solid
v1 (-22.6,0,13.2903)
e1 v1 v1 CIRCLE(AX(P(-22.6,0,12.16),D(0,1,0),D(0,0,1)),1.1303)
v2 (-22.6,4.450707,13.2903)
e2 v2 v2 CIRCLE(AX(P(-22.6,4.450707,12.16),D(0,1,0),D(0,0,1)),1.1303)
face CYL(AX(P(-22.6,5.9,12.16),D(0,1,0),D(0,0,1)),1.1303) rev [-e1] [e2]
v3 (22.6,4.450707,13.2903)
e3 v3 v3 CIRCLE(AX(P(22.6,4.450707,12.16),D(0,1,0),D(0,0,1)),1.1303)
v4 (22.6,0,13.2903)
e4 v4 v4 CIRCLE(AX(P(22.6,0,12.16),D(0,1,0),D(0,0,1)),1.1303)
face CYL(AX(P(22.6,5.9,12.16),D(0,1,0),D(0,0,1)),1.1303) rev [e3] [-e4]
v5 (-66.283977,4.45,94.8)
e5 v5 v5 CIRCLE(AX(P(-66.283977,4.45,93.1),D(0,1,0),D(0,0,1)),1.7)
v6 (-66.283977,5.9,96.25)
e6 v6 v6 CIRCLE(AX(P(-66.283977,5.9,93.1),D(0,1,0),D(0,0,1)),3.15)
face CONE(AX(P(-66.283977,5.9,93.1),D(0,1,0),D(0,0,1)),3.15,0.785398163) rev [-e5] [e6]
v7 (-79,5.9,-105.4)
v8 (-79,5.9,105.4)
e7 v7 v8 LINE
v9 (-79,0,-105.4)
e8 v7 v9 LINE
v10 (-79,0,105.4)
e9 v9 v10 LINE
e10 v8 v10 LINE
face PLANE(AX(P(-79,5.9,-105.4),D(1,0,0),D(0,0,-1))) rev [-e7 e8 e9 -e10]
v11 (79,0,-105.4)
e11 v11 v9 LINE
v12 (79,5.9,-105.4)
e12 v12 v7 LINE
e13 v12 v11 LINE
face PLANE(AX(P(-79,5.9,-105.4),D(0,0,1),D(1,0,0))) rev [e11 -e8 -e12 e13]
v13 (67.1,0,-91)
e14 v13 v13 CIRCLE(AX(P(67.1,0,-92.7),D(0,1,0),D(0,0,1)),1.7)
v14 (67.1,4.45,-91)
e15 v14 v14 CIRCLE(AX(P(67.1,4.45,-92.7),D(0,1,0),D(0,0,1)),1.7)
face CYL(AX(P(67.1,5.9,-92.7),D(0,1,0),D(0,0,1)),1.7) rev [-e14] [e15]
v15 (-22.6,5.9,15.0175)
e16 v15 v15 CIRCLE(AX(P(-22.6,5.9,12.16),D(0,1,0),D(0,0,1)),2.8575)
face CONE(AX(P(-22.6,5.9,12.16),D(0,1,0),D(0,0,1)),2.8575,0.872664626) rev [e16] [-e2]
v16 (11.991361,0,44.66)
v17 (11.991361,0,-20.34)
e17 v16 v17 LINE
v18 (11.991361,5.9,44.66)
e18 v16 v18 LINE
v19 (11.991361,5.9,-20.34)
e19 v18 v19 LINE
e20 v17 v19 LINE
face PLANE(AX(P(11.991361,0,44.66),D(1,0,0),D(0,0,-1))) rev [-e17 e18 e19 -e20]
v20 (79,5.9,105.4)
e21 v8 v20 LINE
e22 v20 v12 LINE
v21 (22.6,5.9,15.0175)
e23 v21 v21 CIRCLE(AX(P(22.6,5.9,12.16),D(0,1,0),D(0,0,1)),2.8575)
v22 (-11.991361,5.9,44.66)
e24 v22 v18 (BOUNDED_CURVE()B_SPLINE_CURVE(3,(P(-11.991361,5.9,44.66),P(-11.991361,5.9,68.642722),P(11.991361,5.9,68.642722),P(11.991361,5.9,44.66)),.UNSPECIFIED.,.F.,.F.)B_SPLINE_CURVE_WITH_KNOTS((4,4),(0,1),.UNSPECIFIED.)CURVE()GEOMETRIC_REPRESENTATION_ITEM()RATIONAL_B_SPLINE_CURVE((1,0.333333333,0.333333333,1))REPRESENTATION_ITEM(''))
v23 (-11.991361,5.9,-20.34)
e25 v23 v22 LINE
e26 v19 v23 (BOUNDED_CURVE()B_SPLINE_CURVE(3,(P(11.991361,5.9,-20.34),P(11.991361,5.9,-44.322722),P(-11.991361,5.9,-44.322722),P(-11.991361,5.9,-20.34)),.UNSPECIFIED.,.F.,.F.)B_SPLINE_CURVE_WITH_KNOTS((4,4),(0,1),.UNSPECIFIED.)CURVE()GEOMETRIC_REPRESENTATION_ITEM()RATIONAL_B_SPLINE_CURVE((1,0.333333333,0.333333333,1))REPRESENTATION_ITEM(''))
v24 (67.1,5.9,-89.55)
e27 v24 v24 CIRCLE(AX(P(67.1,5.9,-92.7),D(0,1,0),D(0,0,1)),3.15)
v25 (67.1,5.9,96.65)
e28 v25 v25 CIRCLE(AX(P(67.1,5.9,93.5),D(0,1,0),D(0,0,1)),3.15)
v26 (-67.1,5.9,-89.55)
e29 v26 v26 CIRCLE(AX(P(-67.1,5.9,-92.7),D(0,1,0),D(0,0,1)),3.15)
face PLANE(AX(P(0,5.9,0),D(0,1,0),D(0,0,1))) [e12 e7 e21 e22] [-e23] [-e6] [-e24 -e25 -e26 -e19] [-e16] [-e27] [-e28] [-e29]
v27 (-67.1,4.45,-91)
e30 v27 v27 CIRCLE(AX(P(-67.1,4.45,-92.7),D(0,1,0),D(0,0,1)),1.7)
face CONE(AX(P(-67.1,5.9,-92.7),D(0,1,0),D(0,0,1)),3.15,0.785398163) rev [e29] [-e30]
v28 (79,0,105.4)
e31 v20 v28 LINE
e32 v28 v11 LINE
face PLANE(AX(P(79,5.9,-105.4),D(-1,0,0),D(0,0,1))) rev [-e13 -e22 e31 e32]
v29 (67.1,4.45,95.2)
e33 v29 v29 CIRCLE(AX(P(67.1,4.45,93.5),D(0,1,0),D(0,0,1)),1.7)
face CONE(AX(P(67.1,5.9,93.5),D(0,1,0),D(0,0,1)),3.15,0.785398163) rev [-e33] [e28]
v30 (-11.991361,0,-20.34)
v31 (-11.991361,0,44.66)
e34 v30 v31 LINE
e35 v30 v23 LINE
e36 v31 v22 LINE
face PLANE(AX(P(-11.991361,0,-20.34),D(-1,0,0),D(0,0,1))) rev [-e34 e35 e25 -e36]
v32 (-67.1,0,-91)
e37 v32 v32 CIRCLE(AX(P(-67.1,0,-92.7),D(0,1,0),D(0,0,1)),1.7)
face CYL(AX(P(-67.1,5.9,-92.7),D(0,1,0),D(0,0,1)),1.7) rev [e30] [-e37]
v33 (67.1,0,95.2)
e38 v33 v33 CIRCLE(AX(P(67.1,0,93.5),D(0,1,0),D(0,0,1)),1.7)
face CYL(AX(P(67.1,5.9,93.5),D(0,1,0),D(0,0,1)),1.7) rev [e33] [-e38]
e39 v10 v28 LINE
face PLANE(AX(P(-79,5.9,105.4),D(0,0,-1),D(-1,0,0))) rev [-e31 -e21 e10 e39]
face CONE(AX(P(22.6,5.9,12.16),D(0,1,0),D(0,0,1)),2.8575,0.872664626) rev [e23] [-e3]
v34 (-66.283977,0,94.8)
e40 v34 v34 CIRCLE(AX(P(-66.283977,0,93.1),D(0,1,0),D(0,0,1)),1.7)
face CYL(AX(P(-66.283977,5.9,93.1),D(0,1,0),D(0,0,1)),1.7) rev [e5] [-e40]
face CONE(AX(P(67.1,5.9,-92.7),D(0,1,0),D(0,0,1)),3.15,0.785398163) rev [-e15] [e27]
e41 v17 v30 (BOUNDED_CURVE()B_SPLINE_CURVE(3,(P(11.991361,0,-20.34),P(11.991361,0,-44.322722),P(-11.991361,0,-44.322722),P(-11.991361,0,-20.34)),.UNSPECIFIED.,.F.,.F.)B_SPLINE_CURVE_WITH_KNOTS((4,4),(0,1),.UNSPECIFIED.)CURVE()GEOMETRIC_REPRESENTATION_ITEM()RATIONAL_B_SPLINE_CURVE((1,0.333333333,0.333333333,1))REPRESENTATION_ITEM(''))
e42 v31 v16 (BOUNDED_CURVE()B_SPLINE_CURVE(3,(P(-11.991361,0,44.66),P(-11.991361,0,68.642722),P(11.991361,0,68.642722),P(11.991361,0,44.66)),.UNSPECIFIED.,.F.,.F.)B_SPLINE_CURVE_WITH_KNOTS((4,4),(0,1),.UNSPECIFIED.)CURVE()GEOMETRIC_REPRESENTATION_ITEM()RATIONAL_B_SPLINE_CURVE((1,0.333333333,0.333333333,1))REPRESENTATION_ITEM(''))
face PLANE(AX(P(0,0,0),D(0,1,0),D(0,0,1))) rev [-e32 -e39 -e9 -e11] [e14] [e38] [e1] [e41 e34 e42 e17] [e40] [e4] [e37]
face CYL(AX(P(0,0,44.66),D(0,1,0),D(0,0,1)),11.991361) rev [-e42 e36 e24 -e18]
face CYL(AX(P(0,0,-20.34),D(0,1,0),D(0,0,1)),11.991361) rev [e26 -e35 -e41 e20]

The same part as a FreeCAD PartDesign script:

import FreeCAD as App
import Part
import Sketcher

doc = App.newDocument("Part")
params = doc.addObject("Spreadsheet::Sheet", "Params")
for row, (alias, value) in enumerate([
    ("sketch1_width", "158 mm"),
    ("sketch1_height", "210.8 mm"),
    ("pad1_length", "5.9 mm"),
    ("sketch2_diameter", "3.4 mm"),
    ("hole_diameter", "3.4 mm"),
    ("hole_depth", "10 mm"),
    ("hole_csink_diameter", "6.3 mm"),
    ("hole2_diameter", "2.2606 mm"),
    ("hole2_depth", "10 mm"),
    ("hole2_csink_diameter", "5.715 mm"),
], start=1):
    params.set(f"A{row}", alias)
    params.set(f"B{row}", "=" + value)
    params.setAlias(f"B{row}", alias)

body = doc.addObject("PartDesign::Body", "Body")

sketch1 = doc.addObject("Sketcher::SketchObject", "Sketch")
body.addObject(sketch1)
sketch1.AttachmentSupport = (doc.XZ_Plane, [""])
sketch1.MapMode = "FlatFace"
sketch1.addGeometry(Part.LineSegment(App.Vector(-79, -105.4, 0), App.Vector(-79, 105.4, 0)), False)
sketch1.addGeometry(Part.LineSegment(App.Vector(-79, 105.4, 0), App.Vector(79, 105.4, 0)), False)
sketch1.addGeometry(Part.LineSegment(App.Vector(79, 105.4, 0), App.Vector(79, -105.4, 0)), False)
sketch1.addGeometry(Part.LineSegment(App.Vector(79, -105.4, 0), App.Vector(-79, -105.4, 0)), False)
sketch1.addConstraint(Sketcher.Constraint("Coincident", 0, 2, 1, 1))
sketch1.addConstraint(Sketcher.Constraint("Coincident", 1, 2, 2, 1))
sketch1.addConstraint(Sketcher.Constraint("Coincident", 2, 2, 3, 1))
sketch1.addConstraint(Sketcher.Constraint("Coincident", 3, 2, 0, 1))
sketch1.addConstraint(Sketcher.Constraint("Vertical", 0))
sketch1.addConstraint(Sketcher.Constraint("Horizontal", 1))
sketch1.addConstraint(Sketcher.Constraint("Vertical", 2))
sketch1.addConstraint(Sketcher.Constraint("Horizontal", 3))
sketch1.addConstraint(Sketcher.Constraint("Symmetric", 0, 2, 2, 2, -1, 1))
sketch1.addConstraint(Sketcher.Constraint("DistanceX", 1, 1, 1, 2, 158.0))
sketch1.addConstraint(Sketcher.Constraint("DistanceY", 0, 1, 0, 2, 210.8))
sketch1.setExpression("Constraints[9]", "Params.sketch1_width")
sketch1.setExpression("Constraints[10]", "Params.sketch1_height")
pad1 = doc.addObject("PartDesign::Pad", "Pad")
body.addObject(pad1)
pad1.Profile = sketch1
pad1.setExpression("Length", "Params.pad1_length")
pad1.Reversed = True

sketch2 = doc.addObject("Sketcher::SketchObject", "Sketch001")
body.addObject(sketch2)
sketch2.AttachmentSupport = (doc.XZ_Plane, [""])
sketch2.MapMode = "FlatFace"
sketch2.AttachmentOffset = App.Placement(App.Vector(0, 0, -5.9), App.Rotation())
sketch2.addGeometry(Part.Circle(App.Vector(67.1, -92.7, 0), App.Vector(0, 0, 1), 1.7), False)
sketch2.addGeometry(Part.Circle(App.Vector(67.1, 93.5, 0), App.Vector(0, 0, 1), 1.7), False)
sketch2.addGeometry(Part.Circle(App.Vector(-66.283977, 93.1, 0), App.Vector(0, 0, 1), 1.7), False)
sketch2.addGeometry(Part.Circle(App.Vector(-67.1, -92.7, 0), App.Vector(0, 0, 1), 1.7), False)
sketch2.addConstraint(Sketcher.Constraint("Equal", 0, 1))
sketch2.addConstraint(Sketcher.Constraint("Equal", 1, 2))
sketch2.addConstraint(Sketcher.Constraint("Equal", 2, 3))
sketch2.addConstraint(Sketcher.Constraint("Symmetric", 0, 3, 3, 3, -2))
sketch2.addConstraint(Sketcher.Constraint("Vertical", 0, 3, 1, 3))
sketch2.addConstraint(Sketcher.Constraint("Diameter", 0, 3.4))
sketch2.addConstraint(Sketcher.Constraint("DistanceX", -1, 1, 0, 3, 67.1))
sketch2.addConstraint(Sketcher.Constraint("DistanceY", 0, 3, -1, 1, 92.7))
sketch2.addConstraint(Sketcher.Constraint("DistanceY", -1, 1, 1, 3, 93.5))
sketch2.addConstraint(Sketcher.Constraint("DistanceY", -1, 1, 2, 3, 93.1))
sketch2.addConstraint(Sketcher.Constraint("DistanceX", 2, 3, -1, 1, 66.283977))
sketch2.setExpression("Constraints[5]", "Params.sketch2_diameter")
doc.recompute()
hole = doc.addObject("PartDesign::Hole", "Hole")
body.addObject(hole)
hole.Profile = sketch2
hole.ThreadType = "None"
hole.setExpression("Diameter", "Params.hole_diameter")
hole.DepthType = "Dimension"
hole.setExpression("Depth", "Params.hole_depth")
hole.DrillPoint = "Angled"
hole.DrillPointAngle = 118
hole.HoleCutType = "Countersink"
hole.setExpression("HoleCutDiameter", "Params.hole_csink_diameter")
hole.HoleCutCountersinkAngle = 90
hole.Reversed = True

sketch3 = doc.addObject("Sketcher::SketchObject", "Sketch002")
body.addObject(sketch3)
sketch3.AttachmentSupport = (doc.XZ_Plane, [""])
sketch3.MapMode = "FlatFace"
sketch3.AttachmentOffset = App.Placement(App.Vector(0, 0, -5.9), App.Rotation())
sketch3.addGeometry(Part.LineSegment(App.Vector(-11.991361, -20.34, 0), App.Vector(-11.991361, 44.66, 0)), False)
sketch3.addGeometry(Part.BSplineCurve([App.Vector(-11.991361, 44.66, 0), App.Vector(-11.991361, 68.642722, 0), App.Vector(11.991361, 68.642722, 0), App.Vector(11.991361, 44.66, 0)], [4, 4], [0, 1], False, 3, [1, 0.333333333, 0.333333333, 1], False), False)
sketch3.addGeometry(Part.LineSegment(App.Vector(11.991361, 44.66, 0), App.Vector(11.991361, -20.34, 0)), False)
sketch3.addGeometry(Part.BSplineCurve([App.Vector(11.991361, -20.34, 0), App.Vector(11.991361, -44.322722, 0), App.Vector(-11.991361, -44.322722, 0), App.Vector(-11.991361, -20.34, 0)], [4, 4], [0, 1], False, 3, [1, 0.333333333, 0.333333333, 1], False), False)
sketch3.addConstraint(Sketcher.Constraint("Block", 1))
sketch3.addConstraint(Sketcher.Constraint("Block", 3))
sketch3.addConstraint(Sketcher.Constraint("Coincident", 0, 2, 1, 1))
sketch3.addConstraint(Sketcher.Constraint("Coincident", 1, 2, 2, 1))
sketch3.addConstraint(Sketcher.Constraint("Coincident", 2, 2, 3, 1))
sketch3.addConstraint(Sketcher.Constraint("Coincident", 3, 2, 0, 1))
pocket1 = doc.addObject("PartDesign::Pocket", "Pocket")
body.addObject(pocket1)
pocket1.Profile = sketch3
pocket1.Type = "ThroughAll"
pocket1.Reversed = True

sketch4 = doc.addObject("Sketcher::SketchObject", "Sketch003")
body.addObject(sketch4)
sketch4.AttachmentSupport = (doc.XZ_Plane, [""])
sketch4.MapMode = "FlatFace"
sketch4.AttachmentOffset = App.Placement(App.Vector(0, 0, -5.9), App.Rotation())
sketch4.addGeometry(Part.Circle(App.Vector(-22.6, 12.16, 0), App.Vector(0, 0, 1), 1.1303), False)
sketch4.addGeometry(Part.Circle(App.Vector(22.6, 12.16, 0), App.Vector(0, 0, 1), 1.1303), False)
sketch4.addConstraint(Sketcher.Constraint("Equal", 0, 1))
sketch4.addConstraint(Sketcher.Constraint("Symmetric", 0, 3, 1, 3, -2))
sketch4.addConstraint(Sketcher.Constraint("Diameter", 0, 2.2606))
sketch4.addConstraint(Sketcher.Constraint("DistanceX", 0, 3, -1, 1, 22.6))
sketch4.addConstraint(Sketcher.Constraint("DistanceY", -1, 1, 0, 3, 12.16))
doc.recompute()
hole2 = doc.addObject("PartDesign::Hole", "Hole001")
body.addObject(hole2)
hole2.Profile = sketch4
hole2.ThreadType = "None"
hole2.setExpression("Diameter", "Params.hole2_diameter")
hole2.DepthType = "Dimension"
hole2.setExpression("Depth", "Params.hole2_depth")
hole2.DrillPoint = "Angled"
hole2.DrillPointAngle = 118
hole2.HoleCutType = "Countersink"
hole2.setExpression("HoleCutDiameter", "Params.hole2_csink_diameter")
hole2.HoleCutCountersinkAngle = 100
hole2.Reversed = True

doc.recompute()
